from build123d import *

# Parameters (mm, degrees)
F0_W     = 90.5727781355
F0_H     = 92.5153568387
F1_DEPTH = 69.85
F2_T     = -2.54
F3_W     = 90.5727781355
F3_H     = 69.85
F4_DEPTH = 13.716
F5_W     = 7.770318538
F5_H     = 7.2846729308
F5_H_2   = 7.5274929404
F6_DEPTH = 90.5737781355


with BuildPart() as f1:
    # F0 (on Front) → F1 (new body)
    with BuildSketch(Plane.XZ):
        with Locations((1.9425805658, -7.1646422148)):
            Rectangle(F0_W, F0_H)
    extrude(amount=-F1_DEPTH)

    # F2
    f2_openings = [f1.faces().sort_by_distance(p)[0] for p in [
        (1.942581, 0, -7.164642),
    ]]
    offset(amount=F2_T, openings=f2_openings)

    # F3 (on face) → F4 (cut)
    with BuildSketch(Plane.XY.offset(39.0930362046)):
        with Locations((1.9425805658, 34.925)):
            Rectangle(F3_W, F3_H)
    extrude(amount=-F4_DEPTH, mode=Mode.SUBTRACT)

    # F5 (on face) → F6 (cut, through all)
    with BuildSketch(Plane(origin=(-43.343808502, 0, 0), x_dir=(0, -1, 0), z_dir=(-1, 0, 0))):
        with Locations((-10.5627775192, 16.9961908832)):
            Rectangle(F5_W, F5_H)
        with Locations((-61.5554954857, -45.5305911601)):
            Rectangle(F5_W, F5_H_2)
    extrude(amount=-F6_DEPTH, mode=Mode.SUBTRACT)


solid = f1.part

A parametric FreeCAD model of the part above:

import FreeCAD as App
import Part
import Sketcher
from FreeCAD import Vector
Q = App.Units.Quantity


def faces_at(feature, points):
    """Names of the faces that lie closest to the given points."""
    faces = feature.Shape.Faces
    near = lambda p: min(range(len(faces)), key=lambda i: faces[i].distToShape(Part.Vertex(*p))[0])
    return sorted({f"Face{near(p) + 1}" for p in points})


def add_polygon(sketch, points):
    """Adds a closed chain of lines whose ends are joined by coincident constraints."""
    first, n = sketch.GeometryCount, len(points)
    for a, b in zip(points, points[1:] + points[:1]):
        sketch.addGeometry(Part.LineSegment(App.Vector(*a, 0), App.Vector(*b, 0)), False)
    for i in range(n):
        sketch.addConstraint(Sketcher.Constraint("Coincident", first + i, 2, first + (i + 1) % n, 1))

doc = App.newDocument("Part")
body = doc.addObject("PartDesign::Body", "Body")

sketch1 = body.newObject("Sketcher::SketchObject", "Sketch")
sketch1.AttachmentSupport = (doc.getObject("XZ_Plane"), [""])
sketch1.MapMode = "FlatFace"
add_polygon(sketch1, [(-43.343809, 39.093036), (-43.343809, -53.422321), (47.22897, -53.422321), (47.22897, 39.093036)])
sketch1.addConstraint([
    Sketcher.Constraint("Vertical", 0),
    Sketcher.Constraint("Horizontal", 1),
    Sketcher.Constraint("Vertical", 2),
    Sketcher.Constraint("Horizontal", 3),
    Sketcher.Constraint("DistanceX", 1, 1, 1, 2, Q("90.572778 mm")),
    Sketcher.Constraint("DistanceY", 0, 2, 0, 1, Q("92.515357 mm")),
    Sketcher.Constraint("DistanceX", 0, 2, -1, 1, Q("43.343809 mm")),
    Sketcher.Constraint("DistanceY", 0, 2, -1, 1, Q("53.422321 mm")),
])
pad1 = body.newObject("PartDesign::Pad", "Pad")
pad1.Profile = sketch1
pad1.Length = Q("2.75 in")
pad1.Reversed = True
doc.recompute()

thickness = body.newObject("PartDesign::Thickness", "Thickness")
thickness.Base = (pad1, faces_at(pad1, [(1.943, 0, -7.165)]))
thickness.Value = Q("0.1 in")
thickness.Reversed = True
thickness.Join = "Arc"

sketch2 = body.newObject("Sketcher::SketchObject", "Sketch001")
sketch2.AttachmentSupport = (doc.getObject("XY_Plane"), [""])
sketch2.MapMode = "FlatFace"
sketch2.AttachmentOffset = App.Placement(Vector(0, 0, 39.093036), App.Rotation())
add_polygon(sketch2, [(-43.343809, 69.85), (-43.343809, 0), (47.22897, 0), (47.22897, 69.85)])
sketch2.addConstraint([
    Sketcher.Constraint("Vertical", 0),
    Sketcher.Constraint("Horizontal", 1),
    Sketcher.Constraint("Vertical", 2),
    Sketcher.Constraint("Horizontal", 3),
    Sketcher.Constraint("PointOnObject", 0, 2, -1),
    Sketcher.Constraint("DistanceY", 0, 2, 0, 1, Q("2.75 in")),
    Sketcher.Constraint("DistanceX", 1, 1, 1, 2, Q("90.572778 mm")),
    Sketcher.Constraint("DistanceX", 0, 2, -1, 1, Q("43.343809 mm")),
])
pocket1 = body.newObject("PartDesign::Pocket", "Pocket")
pocket1.Profile = sketch2
pocket1.Length = Q("0.54 in")

sketch3 = body.newObject("Sketcher::SketchObject", "Sketch002")
sketch3.AttachmentSupport = (doc.getObject("YZ_Plane"), [""])
sketch3.MapMode = "FlatFace"
sketch3.AttachmentOffset = App.Placement(Vector(0, 0, -43.343809), App.Rotation())
add_polygon(sketch3, [(14.447937, 20.638527), (14.447937, 13.353854), (6.677618, 13.353854), (6.677618, 20.638527)])
add_polygon(sketch3, [(65.440655, -41.766845), (65.440655, -49.294338), (57.670336, -49.294338), (57.670336, -41.766845)])
sketch3.addConstraint([
    Sketcher.Constraint("Vertical", 0),
    Sketcher.Constraint("Horizontal", 1),
    Sketcher.Constraint("Vertical", 2),
    Sketcher.Constraint("Horizontal", 3),
    Sketcher.Constraint("Vertical", 4),
    Sketcher.Constraint("Horizontal", 5),
    Sketcher.Constraint("Vertical", 6),
    Sketcher.Constraint("Horizontal", 7),
    Sketcher.Constraint("Equal", 3, 5),
    Sketcher.Constraint("DistanceX", 1, 2, 1, 1, Q("7.770319 mm")),
    Sketcher.Constraint("DistanceX", 0, 2, 5, 2, Q("43.222399 mm")),
    Sketcher.Constraint("DistanceY", 6, 2, 0, 2, Q("55.120699 mm")),
    Sketcher.Constraint("DistanceY", 0, 2, 0, 1, Q("7.284673 mm")),
    Sketcher.Constraint("DistanceY", 4, 2, 4, 1, Q("7.527493 mm")),
    Sketcher.Constraint("DistanceX", -1, 1, 1, 2, Q("6.677618 mm")),
    Sketcher.Constraint("DistanceY", -1, 1, 0, 2, Q("13.353854 mm")),
])
pocket2 = body.newObject("PartDesign::Pocket", "Pocket001")
pocket2.Profile = sketch3
pocket2.Type = "ThroughAll"
pocket2.Reversed = True

doc.recompute()
